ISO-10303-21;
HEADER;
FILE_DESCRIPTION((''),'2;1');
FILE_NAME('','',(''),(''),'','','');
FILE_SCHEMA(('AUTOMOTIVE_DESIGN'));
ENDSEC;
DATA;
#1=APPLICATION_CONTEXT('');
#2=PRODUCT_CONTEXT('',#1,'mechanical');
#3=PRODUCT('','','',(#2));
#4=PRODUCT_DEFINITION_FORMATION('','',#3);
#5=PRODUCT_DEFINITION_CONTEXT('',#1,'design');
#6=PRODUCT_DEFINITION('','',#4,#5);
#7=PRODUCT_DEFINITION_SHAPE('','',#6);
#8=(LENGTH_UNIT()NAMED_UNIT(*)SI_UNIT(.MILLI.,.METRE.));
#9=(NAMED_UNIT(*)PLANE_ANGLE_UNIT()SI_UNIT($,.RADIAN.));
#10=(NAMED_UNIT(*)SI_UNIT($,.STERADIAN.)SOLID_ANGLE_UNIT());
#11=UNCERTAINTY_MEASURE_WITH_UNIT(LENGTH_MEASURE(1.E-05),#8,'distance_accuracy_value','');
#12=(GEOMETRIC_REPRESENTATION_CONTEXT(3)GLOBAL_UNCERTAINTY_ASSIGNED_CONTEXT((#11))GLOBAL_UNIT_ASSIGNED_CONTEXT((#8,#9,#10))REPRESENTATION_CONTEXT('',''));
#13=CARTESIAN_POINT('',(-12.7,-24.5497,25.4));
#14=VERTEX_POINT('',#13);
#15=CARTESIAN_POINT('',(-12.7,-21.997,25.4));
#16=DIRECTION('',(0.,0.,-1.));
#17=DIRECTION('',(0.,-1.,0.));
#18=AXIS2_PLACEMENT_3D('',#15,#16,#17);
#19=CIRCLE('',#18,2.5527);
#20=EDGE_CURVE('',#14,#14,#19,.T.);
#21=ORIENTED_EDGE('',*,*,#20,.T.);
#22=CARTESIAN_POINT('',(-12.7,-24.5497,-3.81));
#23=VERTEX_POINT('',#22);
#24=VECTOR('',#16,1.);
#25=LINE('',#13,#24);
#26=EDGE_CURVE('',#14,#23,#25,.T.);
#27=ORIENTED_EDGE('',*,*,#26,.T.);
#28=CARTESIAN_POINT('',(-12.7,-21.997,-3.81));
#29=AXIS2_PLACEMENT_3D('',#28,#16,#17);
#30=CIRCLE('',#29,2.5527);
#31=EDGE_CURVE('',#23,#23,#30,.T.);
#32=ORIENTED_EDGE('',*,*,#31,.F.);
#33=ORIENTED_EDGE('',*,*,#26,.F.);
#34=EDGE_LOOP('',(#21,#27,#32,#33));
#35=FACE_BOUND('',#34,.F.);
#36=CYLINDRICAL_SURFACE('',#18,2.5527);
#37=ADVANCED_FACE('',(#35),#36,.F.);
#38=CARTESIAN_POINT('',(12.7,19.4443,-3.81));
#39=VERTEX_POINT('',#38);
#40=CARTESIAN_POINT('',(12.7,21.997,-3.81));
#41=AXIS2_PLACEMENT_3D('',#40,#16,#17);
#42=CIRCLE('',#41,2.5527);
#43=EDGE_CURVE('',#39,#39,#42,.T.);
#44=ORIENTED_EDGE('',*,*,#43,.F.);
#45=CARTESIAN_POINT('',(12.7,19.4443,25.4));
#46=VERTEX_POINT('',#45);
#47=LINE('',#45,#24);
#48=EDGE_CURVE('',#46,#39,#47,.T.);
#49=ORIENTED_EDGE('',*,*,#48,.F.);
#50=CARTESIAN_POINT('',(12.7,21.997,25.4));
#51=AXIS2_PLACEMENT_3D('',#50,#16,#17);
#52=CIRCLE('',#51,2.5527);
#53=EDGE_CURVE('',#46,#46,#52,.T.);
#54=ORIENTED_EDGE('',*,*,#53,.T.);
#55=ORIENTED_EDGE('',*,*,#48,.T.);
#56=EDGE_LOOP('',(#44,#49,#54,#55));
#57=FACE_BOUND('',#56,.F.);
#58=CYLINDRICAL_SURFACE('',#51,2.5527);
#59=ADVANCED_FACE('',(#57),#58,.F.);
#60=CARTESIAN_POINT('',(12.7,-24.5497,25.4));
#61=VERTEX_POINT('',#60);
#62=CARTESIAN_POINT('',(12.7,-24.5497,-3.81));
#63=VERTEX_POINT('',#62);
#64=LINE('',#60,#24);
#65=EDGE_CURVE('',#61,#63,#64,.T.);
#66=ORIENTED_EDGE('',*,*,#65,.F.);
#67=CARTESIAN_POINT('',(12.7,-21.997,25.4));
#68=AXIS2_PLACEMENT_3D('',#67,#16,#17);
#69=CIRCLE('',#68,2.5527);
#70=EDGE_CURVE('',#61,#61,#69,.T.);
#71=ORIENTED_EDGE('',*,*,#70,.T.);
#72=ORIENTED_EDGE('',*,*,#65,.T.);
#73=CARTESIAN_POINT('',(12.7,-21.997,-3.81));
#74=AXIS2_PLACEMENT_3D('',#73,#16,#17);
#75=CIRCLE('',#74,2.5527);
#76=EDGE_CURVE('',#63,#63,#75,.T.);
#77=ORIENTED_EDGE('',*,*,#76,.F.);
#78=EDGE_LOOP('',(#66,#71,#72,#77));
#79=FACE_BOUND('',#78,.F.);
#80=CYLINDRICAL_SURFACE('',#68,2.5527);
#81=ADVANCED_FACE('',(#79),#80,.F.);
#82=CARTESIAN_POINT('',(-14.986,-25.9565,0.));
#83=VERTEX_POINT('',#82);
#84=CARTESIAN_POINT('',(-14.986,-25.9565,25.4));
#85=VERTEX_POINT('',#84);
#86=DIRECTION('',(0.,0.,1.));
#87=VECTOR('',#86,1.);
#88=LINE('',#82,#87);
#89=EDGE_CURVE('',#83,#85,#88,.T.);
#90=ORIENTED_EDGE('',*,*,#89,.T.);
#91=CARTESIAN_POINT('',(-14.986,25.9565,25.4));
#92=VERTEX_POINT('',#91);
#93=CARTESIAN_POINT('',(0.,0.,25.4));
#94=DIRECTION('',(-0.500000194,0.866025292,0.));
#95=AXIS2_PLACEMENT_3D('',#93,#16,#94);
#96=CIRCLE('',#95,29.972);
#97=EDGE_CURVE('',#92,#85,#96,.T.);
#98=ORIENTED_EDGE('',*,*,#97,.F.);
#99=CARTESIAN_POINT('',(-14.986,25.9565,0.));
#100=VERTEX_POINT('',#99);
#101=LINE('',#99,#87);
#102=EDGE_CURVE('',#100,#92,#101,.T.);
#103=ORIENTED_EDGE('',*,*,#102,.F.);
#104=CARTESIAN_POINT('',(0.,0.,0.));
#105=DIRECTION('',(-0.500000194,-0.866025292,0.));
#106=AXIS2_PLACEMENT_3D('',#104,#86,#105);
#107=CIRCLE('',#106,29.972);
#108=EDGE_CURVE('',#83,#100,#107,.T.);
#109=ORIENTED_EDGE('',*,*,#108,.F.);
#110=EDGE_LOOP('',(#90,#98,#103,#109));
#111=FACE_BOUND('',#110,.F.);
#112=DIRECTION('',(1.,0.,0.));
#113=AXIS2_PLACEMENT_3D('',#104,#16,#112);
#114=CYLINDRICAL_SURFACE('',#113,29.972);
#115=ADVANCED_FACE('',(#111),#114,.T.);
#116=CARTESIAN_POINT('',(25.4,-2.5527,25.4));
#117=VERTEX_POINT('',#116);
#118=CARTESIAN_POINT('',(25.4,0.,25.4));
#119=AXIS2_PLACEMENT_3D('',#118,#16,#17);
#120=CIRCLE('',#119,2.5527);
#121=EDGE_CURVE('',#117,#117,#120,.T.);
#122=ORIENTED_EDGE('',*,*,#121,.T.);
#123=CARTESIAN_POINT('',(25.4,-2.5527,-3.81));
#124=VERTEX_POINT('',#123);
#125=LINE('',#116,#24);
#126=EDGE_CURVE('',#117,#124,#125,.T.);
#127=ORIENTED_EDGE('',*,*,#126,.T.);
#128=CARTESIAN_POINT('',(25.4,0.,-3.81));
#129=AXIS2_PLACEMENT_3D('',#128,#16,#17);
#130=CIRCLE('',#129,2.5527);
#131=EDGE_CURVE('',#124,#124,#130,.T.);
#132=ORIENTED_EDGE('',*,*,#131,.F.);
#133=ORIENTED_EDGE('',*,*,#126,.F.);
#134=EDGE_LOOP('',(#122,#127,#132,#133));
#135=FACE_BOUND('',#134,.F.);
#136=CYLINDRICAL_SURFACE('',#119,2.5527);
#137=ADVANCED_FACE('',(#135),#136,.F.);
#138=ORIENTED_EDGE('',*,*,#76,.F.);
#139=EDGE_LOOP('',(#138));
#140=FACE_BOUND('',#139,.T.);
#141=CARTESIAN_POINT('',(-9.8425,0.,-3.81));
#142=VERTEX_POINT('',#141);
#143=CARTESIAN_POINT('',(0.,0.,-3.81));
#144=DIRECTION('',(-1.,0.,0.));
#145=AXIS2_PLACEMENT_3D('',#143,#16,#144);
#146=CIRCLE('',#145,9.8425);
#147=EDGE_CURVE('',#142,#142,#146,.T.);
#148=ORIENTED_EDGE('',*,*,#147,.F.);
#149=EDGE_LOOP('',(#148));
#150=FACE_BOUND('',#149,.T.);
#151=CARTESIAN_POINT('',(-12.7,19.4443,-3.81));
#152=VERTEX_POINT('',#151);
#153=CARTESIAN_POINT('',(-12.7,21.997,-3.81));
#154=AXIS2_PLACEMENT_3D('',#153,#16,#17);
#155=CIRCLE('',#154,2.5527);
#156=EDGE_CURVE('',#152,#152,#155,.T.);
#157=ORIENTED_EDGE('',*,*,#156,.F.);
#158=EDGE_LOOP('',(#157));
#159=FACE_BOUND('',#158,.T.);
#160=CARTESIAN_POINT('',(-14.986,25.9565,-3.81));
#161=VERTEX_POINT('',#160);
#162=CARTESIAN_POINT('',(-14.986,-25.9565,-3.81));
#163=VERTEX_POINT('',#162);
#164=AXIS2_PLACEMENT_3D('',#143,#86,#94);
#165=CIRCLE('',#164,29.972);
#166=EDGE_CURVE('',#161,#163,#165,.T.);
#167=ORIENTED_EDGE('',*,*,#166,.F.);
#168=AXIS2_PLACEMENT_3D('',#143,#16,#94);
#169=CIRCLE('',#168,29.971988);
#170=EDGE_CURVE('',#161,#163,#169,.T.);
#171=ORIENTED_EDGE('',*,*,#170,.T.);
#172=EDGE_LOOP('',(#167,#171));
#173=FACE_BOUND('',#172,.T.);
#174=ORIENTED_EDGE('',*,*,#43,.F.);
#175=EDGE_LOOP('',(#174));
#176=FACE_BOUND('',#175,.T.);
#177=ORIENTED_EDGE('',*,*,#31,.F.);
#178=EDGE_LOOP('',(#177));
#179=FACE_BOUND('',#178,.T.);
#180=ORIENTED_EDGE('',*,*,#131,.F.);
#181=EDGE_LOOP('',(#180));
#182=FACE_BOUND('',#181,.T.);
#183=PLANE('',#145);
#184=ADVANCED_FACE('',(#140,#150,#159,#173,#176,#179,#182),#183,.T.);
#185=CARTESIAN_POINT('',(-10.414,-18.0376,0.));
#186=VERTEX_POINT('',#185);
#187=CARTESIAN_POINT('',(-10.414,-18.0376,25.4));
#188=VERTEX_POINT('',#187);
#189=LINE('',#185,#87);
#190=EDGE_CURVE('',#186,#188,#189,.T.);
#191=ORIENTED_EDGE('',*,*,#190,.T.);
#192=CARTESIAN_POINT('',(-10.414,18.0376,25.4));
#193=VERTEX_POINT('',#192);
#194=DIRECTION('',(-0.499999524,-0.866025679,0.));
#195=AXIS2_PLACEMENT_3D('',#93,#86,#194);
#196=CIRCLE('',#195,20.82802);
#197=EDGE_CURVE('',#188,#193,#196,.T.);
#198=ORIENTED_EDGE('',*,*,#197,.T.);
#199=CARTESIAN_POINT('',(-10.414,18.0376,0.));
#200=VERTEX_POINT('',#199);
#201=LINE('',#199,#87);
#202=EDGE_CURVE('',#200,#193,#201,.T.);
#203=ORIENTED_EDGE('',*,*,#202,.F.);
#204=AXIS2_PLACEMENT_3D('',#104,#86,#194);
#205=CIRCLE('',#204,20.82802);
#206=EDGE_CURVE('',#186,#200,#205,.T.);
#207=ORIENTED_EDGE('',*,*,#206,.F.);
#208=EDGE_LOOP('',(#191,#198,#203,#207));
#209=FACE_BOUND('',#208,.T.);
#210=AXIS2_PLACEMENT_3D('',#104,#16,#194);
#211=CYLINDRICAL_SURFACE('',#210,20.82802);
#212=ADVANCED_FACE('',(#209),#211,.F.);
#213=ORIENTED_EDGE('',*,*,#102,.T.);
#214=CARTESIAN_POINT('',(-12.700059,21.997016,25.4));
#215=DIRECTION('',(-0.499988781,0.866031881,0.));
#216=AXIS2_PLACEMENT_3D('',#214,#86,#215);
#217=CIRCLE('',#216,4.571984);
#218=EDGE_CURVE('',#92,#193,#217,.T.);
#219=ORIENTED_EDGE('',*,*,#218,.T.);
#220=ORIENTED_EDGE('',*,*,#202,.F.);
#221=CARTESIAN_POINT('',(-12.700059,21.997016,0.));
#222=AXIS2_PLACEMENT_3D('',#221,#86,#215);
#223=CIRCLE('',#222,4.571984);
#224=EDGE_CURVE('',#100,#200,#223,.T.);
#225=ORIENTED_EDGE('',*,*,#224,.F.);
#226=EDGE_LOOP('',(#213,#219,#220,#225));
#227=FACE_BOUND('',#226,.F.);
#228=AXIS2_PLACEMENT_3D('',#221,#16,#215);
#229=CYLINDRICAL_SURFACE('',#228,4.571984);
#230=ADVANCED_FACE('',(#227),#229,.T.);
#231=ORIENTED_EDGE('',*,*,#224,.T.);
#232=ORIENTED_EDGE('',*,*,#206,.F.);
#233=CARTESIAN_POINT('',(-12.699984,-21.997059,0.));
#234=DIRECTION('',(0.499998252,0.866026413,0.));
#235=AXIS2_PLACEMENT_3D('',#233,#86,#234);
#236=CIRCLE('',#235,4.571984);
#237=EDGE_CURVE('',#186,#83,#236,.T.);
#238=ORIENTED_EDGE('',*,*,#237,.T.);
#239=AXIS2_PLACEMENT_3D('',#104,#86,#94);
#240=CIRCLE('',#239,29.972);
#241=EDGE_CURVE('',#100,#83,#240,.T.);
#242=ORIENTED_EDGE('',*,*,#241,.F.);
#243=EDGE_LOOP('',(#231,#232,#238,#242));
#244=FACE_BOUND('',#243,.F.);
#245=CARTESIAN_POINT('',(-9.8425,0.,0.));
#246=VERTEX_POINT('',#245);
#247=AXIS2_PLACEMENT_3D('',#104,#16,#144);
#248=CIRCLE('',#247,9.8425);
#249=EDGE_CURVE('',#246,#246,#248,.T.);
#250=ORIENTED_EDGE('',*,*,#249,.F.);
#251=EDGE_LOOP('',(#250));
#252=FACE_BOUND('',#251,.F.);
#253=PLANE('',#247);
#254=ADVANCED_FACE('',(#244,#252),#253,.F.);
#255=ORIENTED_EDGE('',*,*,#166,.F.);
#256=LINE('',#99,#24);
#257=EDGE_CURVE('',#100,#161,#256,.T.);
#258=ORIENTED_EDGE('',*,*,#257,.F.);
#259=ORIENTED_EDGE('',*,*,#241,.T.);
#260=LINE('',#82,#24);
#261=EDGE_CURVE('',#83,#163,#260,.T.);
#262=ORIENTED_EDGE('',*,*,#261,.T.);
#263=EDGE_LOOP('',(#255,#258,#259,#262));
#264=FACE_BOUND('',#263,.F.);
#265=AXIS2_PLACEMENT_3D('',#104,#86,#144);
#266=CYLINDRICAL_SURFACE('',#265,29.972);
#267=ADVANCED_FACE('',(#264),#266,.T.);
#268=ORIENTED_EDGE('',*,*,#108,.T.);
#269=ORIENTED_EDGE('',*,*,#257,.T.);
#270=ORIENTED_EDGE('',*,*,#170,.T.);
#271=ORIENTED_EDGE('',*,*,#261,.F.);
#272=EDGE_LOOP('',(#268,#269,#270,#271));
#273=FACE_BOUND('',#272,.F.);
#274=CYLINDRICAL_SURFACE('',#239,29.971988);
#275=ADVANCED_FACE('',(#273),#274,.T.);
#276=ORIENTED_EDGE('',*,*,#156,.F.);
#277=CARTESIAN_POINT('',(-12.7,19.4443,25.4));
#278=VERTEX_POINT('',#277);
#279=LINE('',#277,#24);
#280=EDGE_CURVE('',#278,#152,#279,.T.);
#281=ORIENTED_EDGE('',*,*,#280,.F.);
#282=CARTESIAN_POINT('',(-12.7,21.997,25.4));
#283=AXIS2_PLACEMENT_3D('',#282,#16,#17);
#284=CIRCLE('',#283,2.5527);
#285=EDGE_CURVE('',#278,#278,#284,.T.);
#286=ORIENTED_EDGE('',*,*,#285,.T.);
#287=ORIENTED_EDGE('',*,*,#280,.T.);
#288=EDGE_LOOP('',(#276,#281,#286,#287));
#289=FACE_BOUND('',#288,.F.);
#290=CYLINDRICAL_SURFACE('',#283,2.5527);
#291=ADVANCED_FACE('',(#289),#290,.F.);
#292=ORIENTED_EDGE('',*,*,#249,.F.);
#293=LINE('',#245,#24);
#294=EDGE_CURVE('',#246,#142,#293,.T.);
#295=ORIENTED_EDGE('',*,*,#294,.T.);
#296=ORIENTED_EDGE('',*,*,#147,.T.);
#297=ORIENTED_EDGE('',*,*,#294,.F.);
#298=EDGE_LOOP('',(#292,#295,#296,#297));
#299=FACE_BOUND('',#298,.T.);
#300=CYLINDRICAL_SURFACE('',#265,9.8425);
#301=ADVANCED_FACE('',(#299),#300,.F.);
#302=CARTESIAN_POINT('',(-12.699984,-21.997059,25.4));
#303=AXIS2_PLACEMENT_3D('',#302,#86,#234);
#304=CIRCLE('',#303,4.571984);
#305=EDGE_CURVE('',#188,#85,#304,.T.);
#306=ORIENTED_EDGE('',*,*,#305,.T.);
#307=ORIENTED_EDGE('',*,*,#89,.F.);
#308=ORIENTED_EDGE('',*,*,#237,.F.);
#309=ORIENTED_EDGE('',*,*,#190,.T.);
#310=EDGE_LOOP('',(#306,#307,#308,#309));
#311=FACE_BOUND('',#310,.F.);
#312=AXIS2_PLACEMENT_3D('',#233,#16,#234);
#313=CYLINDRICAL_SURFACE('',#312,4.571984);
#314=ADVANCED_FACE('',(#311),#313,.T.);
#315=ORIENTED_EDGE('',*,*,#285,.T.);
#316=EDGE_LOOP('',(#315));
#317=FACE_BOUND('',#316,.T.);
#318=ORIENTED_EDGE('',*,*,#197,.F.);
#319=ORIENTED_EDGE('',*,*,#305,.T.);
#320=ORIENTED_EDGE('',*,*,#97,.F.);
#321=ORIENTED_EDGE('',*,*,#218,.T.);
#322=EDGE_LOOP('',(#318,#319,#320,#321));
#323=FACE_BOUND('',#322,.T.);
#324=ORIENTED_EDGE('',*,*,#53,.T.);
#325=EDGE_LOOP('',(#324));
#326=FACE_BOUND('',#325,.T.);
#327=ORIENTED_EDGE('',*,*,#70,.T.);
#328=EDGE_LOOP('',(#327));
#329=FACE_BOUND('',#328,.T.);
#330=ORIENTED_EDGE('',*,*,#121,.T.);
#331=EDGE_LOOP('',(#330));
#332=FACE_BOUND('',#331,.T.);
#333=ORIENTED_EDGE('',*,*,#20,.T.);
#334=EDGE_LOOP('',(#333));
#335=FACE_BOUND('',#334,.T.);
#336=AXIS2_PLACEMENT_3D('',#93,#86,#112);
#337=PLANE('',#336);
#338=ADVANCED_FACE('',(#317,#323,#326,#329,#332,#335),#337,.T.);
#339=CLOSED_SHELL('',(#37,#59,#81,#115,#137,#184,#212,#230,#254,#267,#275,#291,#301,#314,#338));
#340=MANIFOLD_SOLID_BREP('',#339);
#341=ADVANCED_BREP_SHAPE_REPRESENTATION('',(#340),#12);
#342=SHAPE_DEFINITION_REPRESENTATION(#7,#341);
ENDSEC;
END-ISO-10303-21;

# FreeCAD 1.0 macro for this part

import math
import FreeCAD as App
import Part
import Sketcher
from FreeCAD import Vector
Q = App.Units.Quantity

doc = App.newDocument("Part")
body = doc.addObject("PartDesign::Body", "Body")

sketch1 = body.newObject("Sketcher::SketchObject", "Sketch")
sketch1.AttachmentSupport = (doc.getObject("XY_Plane"), [""])
sketch1.MapMode = "FlatFace"
sketch1.addGeometry([
    Part.ArcOfCircle(Part.Circle(Vector(0, 0, 0), Vector(0, 0, 1), 30), math.radians(-120), math.radians(120)),
    Part.ArcOfCircle(Part.Circle(Vector(-12.7, 22, 0), Vector(0, 0, 1), 4.6), math.radians(120), math.radians(300)),
    Part.ArcOfCircle(Part.Circle(Vector(0, 0, 0), Vector(0, 0, 1), 20.8), math.radians(-120), math.radians(120)),
    Part.ArcOfCircle(Part.Circle(Vector(-12.7, -22, 0), Vector(0, 0, 1), 4.6), math.radians(60), math.radians(240)),
], False)
sketch1.addConstraint([
    Sketcher.Constraint("Tangent", 0, 2, 1, 1),
    Sketcher.Constraint("Tangent", 1, 2, 2, 2),
    Sketcher.Constraint("Tangent", 2, 1, 3, 1),
    Sketcher.Constraint("Tangent", 3, 2, 0, 1),
    Sketcher.Constraint("Coincident", 0, 3, -1, 1),
    Sketcher.Constraint("Coincident", 2, 3, -1, 1),
    Sketcher.Constraint("Vertical", 1, 3, 3, 3),
    Sketcher.Constraint("Radius", 0, Q("1.18 in")),
    Sketcher.Constraint("Radius", 1, Q("0.18 in")),
    Sketcher.Constraint("DistanceX", 1, 3, -1, 1, Q("0.5 in")),
])
pad1 = body.newObject("PartDesign::Pad", "Pad")
pad1.Profile = sketch1
pad1.Length = Q("1 in")

sketch2 = body.newObject("Sketcher::SketchObject", "Sketch001")
sketch2.AttachmentSupport = (doc.getObject("XY_Plane"), [""])
sketch2.MapMode = "FlatFace"
sketch2.addGeometry([
    Part.Circle(Vector(0, 0, 0), Vector(0, 0, 1), 30),
    Part.Circle(Vector(0, 0, 0), Vector(0, 0, 1), 10),
], False)
sketch2.addConstraint([
    Sketcher.Constraint("Coincident", 0, 3, -1, 1),
    Sketcher.Constraint("Coincident", 1, 3, -1, 1),
    Sketcher.Constraint("Diameter", 0, Q("2.36 in")),
    Sketcher.Constraint("Diameter", 1, Q("0.775 in")),
])
pad2 = body.newObject("PartDesign::Pad", "Pad001")
pad2.Profile = sketch2
pad2.Length = Q("0.15 in")
pad2.Reversed = True

sketch3 = body.newObject("Sketcher::SketchObject", "Sketch002")
sketch3.AttachmentSupport = (doc.getObject("XY_Plane"), [""])
sketch3.MapMode = "FlatFace"
sketch3.AttachmentOffset = App.Placement(Vector(0, 0, 1 * 25.4), App.Rotation())
sketch3.addGeometry([
    Part.Circle(Vector(-12.7, 22, 0), Vector(0, 0, 1), 2.6),
    Part.Circle(Vector(12.7, 22, 0), Vector(0, 0, 1), 2.6),
    Part.Circle(Vector(25.4, 0, 0), Vector(0, 0, 1), 2.6),
    Part.Circle(Vector(12.7, -22, 0), Vector(0, 0, 1), 2.6),
    Part.Circle(Vector(-12.7, -22, 0), Vector(0, 0, 1), 2.6),
], False)
sketch3.addConstraint([
    Sketcher.Constraint("Equal", 0, 1),
    Sketcher.Constraint("Equal", 1, 2),
    Sketcher.Constraint("Equal", 2, 3),
    Sketcher.Constraint("Equal", 3, 4),
    Sketcher.Constraint("Symmetric", 0, 3, 3, 3, -1, 1),
    Sketcher.Constraint("Symmetric", 1, 3, 4, 3, -1, 1),
    Sketcher.Constraint("Symmetric", 0, 3, 1, 3, -2),
    Sketcher.Constraint("PointOnObject", 2, 3, -1),
    Sketcher.Constraint("Diameter", 0, Q("0.201 in")),
    Sketcher.Constraint("DistanceX", -1, 1, 2, 3, Q("1 in")),
    Sketcher.Constraint("DistanceX", 0, 3, 1, 3, Q("1 in")),
    Sketcher.Constraint("DistanceY", -1, 1, 0, 3, 21.997),
])
doc.recompute()
hole = body.newObject("PartDesign::Hole", "Hole")
hole.Profile = sketch3
hole.ThreadType = "None"
hole.Diameter = Q("0.201 in")
hole.DepthType = "ThroughAll"

doc.recompute()
